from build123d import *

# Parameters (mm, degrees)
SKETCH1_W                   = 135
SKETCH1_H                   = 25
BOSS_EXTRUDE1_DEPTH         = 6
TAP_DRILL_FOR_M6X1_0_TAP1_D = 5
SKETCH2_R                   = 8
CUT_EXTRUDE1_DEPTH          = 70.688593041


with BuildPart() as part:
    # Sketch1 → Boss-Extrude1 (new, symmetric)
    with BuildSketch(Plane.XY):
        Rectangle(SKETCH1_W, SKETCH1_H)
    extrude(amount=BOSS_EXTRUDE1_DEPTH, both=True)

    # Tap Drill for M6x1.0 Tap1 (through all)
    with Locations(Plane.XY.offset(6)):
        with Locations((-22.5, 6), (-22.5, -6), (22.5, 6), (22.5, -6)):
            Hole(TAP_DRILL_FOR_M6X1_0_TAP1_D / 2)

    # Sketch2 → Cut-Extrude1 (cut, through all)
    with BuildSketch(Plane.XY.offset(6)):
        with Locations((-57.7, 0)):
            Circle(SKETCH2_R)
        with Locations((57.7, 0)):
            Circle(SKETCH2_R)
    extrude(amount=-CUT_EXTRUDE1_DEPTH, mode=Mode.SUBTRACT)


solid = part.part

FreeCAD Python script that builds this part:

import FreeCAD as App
import Part
import Sketcher
from FreeCAD import Vector

doc = App.newDocument("Part")
body = doc.addObject("PartDesign::Body", "Body")

# Sketch on XY plane
sketch1 = body.newObject("Sketcher::SketchObject", "Sketch")
sketch1.AttachmentSupport = (doc.getObject("XY_Plane"), [""])
sketch1.MapMode = "FlatFace"
sketch1.addGeometry(Part.LineSegment(Vector(-68, 12, 0), Vector(-68, -12, 0)), False)
sketch1.addGeometry(Part.LineSegment(Vector(-68, -12, 0), Vector(68, -12, 0)), False)
sketch1.addGeometry(Part.LineSegment(Vector(68, -12, 0), Vector(68, 12, 0)), False)
sketch1.addGeometry(Part.LineSegment(Vector(68, 12, 0), Vector(-68, 12, 0)), False)
sketch1.addConstraint(Sketcher.Constraint("Coincident", 0, 2, 1, 1))
sketch1.addConstraint(Sketcher.Constraint("Coincident", 1, 2, 2, 1))
sketch1.addConstraint(Sketcher.Constraint("Coincident", 2, 2, 3, 1))
sketch1.addConstraint(Sketcher.Constraint("Coincident", 3, 2, 0, 1))
sketch1.addConstraint(Sketcher.Constraint("Vertical", 0))
sketch1.addConstraint(Sketcher.Constraint("Horizontal", 1))
sketch1.addConstraint(Sketcher.Constraint("Vertical", 2))
sketch1.addConstraint(Sketcher.Constraint("Horizontal", 3))
sketch1.addConstraint(Sketcher.Constraint("Symmetric", 0, 2, 2, 2, -1, 1))
sketch1.addConstraint(Sketcher.Constraint("DistanceX", 1, 1, 1, 2, 135.0))
sketch1.addConstraint(Sketcher.Constraint("DistanceY", 0, 2, 0, 1, 25.0))
pad1 = body.newObject("PartDesign::Pad", "Pad")
pad1.Profile = sketch1
pad1.Length = 12
pad1.Midplane = True

# Sketch on XY plane
sketch2 = body.newObject("Sketcher::SketchObject", "Sketch001")
sketch2.AttachmentSupport = (doc.getObject("XY_Plane"), [""])
sketch2.MapMode = "FlatFace"
sketch2.AttachmentOffset = App.Placement(Vector(0, 0, 6), App.Rotation())
sketch2.addGeometry(Part.Circle(Vector(-22.5, 6, 0), Vector(0, 0, 1), 2.5), False)
sketch2.addGeometry(Part.Circle(Vector(-22.5, -6, 0), Vector(0, 0, 1), 2.5), False)
sketch2.addGeometry(Part.Circle(Vector(22.5, 6, 0), Vector(0, 0, 1), 2.5), False)
sketch2.addGeometry(Part.Circle(Vector(22.5, -6, 0), Vector(0, 0, 1), 2.5), False)
sketch2.addConstraint(Sketcher.Constraint("Equal", 0, 1))
sketch2.addConstraint(Sketcher.Constraint("Equal", 1, 2))
sketch2.addConstraint(Sketcher.Constraint("Equal", 2, 3))
sketch2.addConstraint(Sketcher.Constraint("Symmetric", 1, 3, 2, 3, -1, 1))
sketch2.addConstraint(Sketcher.Constraint("Symmetric", 0, 3, 3, 3, -1, 1))
sketch2.addConstraint(Sketcher.Constraint("Symmetric", 0, 3, 2, 3, -2))
sketch2.addConstraint(Sketcher.Constraint("Diameter", 0, 5.0))
sketch2.addConstraint(Sketcher.Constraint("DistanceY", -1, 1, 0, 3, 6.0))
sketch2.addConstraint(Sketcher.Constraint("DistanceX", 0, 3, 2, 3, 45.0))
doc.recompute()
hole = body.newObject("PartDesign::Hole", "Hole")
hole.Profile = sketch2
hole.ThreadType = "None"
hole.Diameter = 5
hole.DepthType = "ThroughAll"

# Sketch on XY plane
sketch3 = body.newObject("Sketcher::SketchObject", "Sketch002")
sketch3.AttachmentSupport = (doc.getObject("XY_Plane"), [""])
sketch3.MapMode = "FlatFace"
sketch3.AttachmentOffset = App.Placement(Vector(0, 0, 6), App.Rotation())
sketch3.addGeometry(Part.Circle(Vector(-58, 0, 0), Vector(0, 0, 1), 8), False)
sketch3.addGeometry(Part.Circle(Vector(58, 0, 0), Vector(0, 0, 1), 8), False)
sketch3.addConstraint(Sketcher.Constraint("Equal", 0, 1))
sketch3.addConstraint(Sketcher.Constraint("Symmetric", 0, 3, 1, 3, -1, 1))
sketch3.addConstraint(Sketcher.Constraint("PointOnObject", 0, 3, -1))
sketch3.addConstraint(Sketcher.Constraint("Diameter", 0, 16.0))
sketch3.addConstraint(Sketcher.Constraint("DistanceX", 0, 3, -1, 1, 57.7))
pocket1 = body.newObject("PartDesign::Pocket", "Pocket")
pocket1.Profile = sketch3
pocket1.Type = "ThroughAll"

doc.recompute()
